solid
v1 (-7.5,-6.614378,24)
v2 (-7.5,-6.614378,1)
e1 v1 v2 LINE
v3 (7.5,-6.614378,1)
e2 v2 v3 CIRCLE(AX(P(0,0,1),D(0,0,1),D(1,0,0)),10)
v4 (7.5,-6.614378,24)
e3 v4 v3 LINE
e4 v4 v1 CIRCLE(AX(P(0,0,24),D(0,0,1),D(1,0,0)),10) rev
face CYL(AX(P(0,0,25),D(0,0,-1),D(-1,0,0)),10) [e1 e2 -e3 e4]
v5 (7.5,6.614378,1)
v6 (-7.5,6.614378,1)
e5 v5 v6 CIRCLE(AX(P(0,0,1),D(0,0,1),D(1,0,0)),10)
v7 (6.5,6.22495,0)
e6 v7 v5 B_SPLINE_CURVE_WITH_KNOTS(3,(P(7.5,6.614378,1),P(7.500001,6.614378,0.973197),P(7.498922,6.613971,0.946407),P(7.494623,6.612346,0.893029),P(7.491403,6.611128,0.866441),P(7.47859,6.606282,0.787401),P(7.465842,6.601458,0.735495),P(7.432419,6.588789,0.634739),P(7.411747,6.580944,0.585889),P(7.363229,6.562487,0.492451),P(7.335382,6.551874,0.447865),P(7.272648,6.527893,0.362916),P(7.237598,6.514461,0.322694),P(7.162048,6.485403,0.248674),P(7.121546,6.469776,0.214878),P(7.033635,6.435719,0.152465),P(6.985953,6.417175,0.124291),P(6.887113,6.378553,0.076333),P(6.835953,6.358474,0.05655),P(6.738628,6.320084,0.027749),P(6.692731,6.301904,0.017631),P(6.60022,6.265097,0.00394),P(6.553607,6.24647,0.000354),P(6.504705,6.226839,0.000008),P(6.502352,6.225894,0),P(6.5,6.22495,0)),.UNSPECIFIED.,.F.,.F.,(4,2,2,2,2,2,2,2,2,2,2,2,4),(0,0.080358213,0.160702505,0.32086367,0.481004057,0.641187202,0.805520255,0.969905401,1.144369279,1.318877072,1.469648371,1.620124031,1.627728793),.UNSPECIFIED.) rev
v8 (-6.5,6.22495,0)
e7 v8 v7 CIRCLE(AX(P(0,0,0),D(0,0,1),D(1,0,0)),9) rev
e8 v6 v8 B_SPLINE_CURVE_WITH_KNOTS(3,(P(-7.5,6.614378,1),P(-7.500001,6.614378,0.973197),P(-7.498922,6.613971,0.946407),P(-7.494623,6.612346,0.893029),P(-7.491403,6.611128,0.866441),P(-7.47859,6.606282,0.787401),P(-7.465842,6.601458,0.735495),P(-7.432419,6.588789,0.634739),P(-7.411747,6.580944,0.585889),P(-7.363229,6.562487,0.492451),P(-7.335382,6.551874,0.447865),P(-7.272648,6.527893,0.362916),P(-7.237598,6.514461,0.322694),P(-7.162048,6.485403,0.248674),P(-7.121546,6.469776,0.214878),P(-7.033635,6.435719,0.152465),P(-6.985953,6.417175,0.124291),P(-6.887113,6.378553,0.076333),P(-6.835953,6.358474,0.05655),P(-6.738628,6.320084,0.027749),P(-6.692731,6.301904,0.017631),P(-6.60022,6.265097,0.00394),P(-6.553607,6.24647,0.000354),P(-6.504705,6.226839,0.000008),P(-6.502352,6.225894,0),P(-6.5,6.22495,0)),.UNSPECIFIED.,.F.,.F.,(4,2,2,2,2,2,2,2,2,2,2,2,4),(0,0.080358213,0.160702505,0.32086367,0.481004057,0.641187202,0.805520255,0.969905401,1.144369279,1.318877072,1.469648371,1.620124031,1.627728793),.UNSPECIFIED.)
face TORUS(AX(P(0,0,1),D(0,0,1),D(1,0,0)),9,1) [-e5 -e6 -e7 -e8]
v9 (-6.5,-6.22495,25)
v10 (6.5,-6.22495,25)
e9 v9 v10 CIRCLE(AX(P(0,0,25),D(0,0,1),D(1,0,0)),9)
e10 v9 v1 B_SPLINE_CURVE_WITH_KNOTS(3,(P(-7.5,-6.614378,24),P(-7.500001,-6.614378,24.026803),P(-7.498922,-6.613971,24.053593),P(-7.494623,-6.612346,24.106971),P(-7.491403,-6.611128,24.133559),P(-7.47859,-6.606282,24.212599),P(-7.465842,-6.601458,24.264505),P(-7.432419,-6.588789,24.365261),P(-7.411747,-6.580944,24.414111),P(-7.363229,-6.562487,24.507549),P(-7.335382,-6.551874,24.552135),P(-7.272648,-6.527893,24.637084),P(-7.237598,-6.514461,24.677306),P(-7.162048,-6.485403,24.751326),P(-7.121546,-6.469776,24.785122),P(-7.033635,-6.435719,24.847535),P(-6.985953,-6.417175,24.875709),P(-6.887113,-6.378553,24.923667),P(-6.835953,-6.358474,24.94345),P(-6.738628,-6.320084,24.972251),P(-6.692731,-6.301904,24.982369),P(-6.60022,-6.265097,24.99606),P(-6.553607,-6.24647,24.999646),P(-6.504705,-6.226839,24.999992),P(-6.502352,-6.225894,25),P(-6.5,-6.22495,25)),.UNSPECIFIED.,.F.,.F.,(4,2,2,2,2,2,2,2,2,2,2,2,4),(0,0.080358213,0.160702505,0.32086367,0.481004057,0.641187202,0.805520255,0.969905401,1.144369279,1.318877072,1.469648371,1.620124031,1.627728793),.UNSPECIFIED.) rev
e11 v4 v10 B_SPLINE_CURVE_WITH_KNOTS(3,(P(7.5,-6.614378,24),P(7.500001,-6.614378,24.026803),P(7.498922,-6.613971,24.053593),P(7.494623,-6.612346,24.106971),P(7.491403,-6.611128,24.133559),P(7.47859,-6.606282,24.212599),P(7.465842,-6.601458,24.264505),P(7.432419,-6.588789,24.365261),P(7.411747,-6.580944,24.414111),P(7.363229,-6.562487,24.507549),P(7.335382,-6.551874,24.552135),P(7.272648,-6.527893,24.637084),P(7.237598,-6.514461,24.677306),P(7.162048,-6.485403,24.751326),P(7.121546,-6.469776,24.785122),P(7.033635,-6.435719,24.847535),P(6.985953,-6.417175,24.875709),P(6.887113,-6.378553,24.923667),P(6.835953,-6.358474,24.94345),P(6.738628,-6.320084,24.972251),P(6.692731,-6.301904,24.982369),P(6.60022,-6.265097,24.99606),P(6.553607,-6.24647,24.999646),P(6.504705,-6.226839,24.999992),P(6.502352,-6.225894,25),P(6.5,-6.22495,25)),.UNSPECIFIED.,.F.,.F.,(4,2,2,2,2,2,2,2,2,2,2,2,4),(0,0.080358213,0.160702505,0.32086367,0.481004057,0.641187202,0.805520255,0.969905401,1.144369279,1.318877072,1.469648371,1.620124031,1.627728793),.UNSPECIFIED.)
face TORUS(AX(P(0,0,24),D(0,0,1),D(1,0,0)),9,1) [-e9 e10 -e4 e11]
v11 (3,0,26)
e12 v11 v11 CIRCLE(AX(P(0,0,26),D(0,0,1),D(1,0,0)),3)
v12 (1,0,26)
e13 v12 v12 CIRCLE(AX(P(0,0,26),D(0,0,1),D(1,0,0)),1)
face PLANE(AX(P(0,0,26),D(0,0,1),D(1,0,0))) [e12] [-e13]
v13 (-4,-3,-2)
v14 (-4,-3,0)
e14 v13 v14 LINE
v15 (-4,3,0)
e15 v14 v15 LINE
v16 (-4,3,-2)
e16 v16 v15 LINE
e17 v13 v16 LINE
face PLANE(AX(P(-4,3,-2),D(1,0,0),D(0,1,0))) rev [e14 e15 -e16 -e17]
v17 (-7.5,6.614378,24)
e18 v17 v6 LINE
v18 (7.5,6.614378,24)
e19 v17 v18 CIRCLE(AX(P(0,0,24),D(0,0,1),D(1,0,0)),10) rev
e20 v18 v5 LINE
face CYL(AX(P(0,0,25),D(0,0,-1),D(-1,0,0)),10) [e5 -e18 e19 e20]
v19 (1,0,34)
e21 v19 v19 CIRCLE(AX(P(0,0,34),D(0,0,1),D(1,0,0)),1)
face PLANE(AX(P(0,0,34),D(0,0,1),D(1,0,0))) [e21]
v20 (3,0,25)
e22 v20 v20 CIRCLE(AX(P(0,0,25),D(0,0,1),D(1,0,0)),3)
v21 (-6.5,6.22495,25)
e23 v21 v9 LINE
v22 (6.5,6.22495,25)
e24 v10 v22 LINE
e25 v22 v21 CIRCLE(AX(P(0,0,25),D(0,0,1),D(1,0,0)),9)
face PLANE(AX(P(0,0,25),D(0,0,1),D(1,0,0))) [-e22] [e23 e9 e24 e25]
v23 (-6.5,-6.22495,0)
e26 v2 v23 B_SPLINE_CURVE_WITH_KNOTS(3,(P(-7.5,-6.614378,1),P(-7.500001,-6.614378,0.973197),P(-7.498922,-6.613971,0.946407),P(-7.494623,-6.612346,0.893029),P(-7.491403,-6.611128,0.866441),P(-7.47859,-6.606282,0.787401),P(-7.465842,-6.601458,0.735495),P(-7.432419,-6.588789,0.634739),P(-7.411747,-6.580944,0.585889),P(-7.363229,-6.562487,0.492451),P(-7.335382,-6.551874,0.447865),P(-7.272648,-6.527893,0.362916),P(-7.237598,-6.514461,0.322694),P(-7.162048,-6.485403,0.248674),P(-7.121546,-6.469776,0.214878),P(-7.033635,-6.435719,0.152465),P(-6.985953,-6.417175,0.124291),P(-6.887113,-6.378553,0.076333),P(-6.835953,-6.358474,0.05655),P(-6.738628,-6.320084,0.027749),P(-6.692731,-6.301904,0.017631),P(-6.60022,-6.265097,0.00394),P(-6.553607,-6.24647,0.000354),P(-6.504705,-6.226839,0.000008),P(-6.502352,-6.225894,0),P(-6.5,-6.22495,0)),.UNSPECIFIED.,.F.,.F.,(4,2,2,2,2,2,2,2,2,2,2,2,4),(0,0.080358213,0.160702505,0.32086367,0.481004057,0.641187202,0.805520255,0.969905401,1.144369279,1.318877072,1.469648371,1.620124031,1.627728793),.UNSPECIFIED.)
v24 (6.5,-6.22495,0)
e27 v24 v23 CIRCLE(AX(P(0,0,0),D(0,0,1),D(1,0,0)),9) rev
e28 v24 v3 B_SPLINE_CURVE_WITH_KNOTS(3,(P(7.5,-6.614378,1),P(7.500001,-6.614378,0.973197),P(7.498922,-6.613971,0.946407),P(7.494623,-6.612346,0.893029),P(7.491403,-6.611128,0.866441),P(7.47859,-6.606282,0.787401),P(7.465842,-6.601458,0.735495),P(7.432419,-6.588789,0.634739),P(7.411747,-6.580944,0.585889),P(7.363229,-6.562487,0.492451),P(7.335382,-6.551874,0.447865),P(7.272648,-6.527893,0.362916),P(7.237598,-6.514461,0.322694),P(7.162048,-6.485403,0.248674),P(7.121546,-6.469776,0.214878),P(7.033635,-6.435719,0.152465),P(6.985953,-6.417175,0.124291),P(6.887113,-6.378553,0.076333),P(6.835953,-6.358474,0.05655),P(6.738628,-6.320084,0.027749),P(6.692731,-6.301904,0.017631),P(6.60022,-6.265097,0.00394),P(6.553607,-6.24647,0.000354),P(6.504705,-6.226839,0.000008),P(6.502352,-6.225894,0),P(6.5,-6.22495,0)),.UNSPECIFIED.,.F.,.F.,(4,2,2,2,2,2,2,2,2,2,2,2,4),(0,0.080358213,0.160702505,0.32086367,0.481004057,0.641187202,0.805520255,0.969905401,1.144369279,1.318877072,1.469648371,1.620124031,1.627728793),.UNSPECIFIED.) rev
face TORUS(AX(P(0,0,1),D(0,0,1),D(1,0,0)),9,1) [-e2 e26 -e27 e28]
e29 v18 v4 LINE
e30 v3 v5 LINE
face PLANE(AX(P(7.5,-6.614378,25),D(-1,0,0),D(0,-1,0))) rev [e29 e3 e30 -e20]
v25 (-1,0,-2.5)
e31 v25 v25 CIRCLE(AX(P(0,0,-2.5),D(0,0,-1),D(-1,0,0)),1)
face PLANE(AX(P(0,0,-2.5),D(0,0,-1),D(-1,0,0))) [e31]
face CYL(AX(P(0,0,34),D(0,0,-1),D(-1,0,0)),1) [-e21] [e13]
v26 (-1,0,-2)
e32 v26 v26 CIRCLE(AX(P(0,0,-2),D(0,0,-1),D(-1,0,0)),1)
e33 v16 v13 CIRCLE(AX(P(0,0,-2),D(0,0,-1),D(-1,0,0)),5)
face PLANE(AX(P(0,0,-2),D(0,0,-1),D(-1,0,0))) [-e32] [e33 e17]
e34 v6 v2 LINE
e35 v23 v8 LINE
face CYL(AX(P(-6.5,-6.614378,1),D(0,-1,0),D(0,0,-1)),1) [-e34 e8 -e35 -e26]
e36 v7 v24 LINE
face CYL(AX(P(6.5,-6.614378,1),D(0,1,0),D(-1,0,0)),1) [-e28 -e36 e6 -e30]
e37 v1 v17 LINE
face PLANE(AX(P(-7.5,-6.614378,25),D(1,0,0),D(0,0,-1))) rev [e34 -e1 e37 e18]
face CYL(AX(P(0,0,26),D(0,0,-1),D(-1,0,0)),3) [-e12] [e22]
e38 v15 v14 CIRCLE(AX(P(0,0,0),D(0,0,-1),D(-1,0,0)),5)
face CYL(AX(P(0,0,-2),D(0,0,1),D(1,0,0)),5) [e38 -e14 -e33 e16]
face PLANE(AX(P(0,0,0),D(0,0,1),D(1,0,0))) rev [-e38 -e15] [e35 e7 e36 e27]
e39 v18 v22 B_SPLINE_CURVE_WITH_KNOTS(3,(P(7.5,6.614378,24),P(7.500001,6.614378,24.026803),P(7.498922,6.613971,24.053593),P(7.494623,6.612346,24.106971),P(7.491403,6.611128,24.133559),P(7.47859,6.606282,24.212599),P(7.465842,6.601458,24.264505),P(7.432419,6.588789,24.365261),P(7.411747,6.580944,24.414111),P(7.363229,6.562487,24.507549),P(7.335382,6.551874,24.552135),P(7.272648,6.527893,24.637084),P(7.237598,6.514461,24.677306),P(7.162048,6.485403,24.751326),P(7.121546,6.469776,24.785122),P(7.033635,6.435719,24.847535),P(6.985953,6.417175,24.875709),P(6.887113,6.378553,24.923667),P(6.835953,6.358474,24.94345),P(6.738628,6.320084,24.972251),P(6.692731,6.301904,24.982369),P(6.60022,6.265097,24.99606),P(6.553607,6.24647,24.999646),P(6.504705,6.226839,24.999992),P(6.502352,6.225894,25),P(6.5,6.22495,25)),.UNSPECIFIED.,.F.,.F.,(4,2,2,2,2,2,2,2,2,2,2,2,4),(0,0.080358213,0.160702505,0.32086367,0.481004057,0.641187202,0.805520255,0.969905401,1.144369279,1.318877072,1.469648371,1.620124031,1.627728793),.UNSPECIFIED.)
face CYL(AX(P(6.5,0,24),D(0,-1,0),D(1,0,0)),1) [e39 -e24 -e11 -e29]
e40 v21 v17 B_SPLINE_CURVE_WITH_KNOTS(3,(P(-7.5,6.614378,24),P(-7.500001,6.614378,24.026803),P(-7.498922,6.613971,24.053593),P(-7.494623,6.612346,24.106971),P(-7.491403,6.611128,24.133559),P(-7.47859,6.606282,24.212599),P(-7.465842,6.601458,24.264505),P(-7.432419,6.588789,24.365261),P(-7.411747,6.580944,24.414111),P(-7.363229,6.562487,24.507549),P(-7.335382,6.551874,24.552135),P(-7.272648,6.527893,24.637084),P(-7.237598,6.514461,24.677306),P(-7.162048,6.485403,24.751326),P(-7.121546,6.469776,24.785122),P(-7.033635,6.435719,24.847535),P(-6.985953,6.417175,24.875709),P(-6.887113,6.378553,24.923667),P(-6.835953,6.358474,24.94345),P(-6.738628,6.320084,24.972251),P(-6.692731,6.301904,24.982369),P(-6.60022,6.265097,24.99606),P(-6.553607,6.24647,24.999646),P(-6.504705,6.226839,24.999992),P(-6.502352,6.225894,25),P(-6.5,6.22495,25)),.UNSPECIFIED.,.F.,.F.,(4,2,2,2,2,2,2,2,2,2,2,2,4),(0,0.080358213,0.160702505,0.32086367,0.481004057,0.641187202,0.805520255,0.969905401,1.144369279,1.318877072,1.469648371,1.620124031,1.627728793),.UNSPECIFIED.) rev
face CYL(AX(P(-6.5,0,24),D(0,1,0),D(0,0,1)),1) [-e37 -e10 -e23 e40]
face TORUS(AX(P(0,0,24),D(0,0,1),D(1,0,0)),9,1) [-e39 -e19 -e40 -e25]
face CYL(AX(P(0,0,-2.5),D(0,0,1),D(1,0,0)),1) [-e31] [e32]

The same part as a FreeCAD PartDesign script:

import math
import FreeCAD as App
import Part
import Sketcher
Q = App.Units.Quantity


def edges_at(feature, points):
    """Names of the edges that pass closest to the given points."""
    edges = feature.Shape.Edges
    near = lambda p: min(range(len(edges)), key=lambda i: edges[i].distToShape(Part.Vertex(*p))[0])
    return sorted({f"Edge{near(p) + 1}" for p in points})

doc = App.newDocument("Part")
body = doc.addObject("PartDesign::Body", "Body")

# Sketch on XY plane
sketch1 = body.newObject("Sketcher::SketchObject", "Sketch")
sketch1.AttachmentSupport = (doc.getObject("XY_Plane"), [""])
sketch1.MapMode = "FlatFace"
sketch1.addGeometry(Part.LineSegment(App.Vector(-8, 7, 0), App.Vector(-8, -7, 0)), False)
sketch1.addGeometry(Part.ArcOfCircle(Part.Circle(App.Vector(0, 0, 0), App.Vector(0, 0, 1), 10), math.radians(-139), math.radians(-41)), False)
sketch1.addGeometry(Part.LineSegment(App.Vector(8, -7, 0), App.Vector(8, 7, 0)), False)
sketch1.addGeometry(Part.ArcOfCircle(Part.Circle(App.Vector(0, 0, 0), App.Vector(0, 0, 1), 10), math.radians(41), math.radians(139)), False)
sketch1.addConstraint(Sketcher.Constraint("Coincident", 0, 2, 1, 1))
sketch1.addConstraint(Sketcher.Constraint("Coincident", 1, 2, 2, 1))
sketch1.addConstraint(Sketcher.Constraint("Coincident", 2, 2, 3, 1))
sketch1.addConstraint(Sketcher.Constraint("Coincident", 3, 2, 0, 1))
sketch1.addConstraint(Sketcher.Constraint("Vertical", 0))
sketch1.addConstraint(Sketcher.Constraint("Vertical", 2))
sketch1.addConstraint(Sketcher.Constraint("Coincident", 1, 3, -1, 1))
sketch1.addConstraint(Sketcher.Constraint("Coincident", 3, 3, -1, 1))
sketch1.addConstraint(Sketcher.Constraint("Equal", 1, 3))
sketch1.addConstraint(Sketcher.Constraint("Horizontal", 0, 2, 1, 2))
sketch1.addConstraint(Sketcher.Constraint("Radius", 1, Q("10 mm")))
sketch1.addConstraint(Sketcher.Constraint("DistanceX", 0, 2, 1, 2, Q("15 mm")))
pad1 = body.newObject("PartDesign::Pad", "Pad")
pad1.Profile = sketch1
pad1.Length = 25

# Sketch on XY plane
sketch2 = body.newObject("Sketcher::SketchObject", "Sketch001")
sketch2.AttachmentSupport = (doc.getObject("XY_Plane"), [""])
sketch2.MapMode = "FlatFace"
sketch2.AttachmentOffset = App.Placement(App.Vector(0, 0, 25), App.Rotation())
sketch2.addGeometry(Part.Circle(App.Vector(0, 0, 0), App.Vector(0, 0, 1), 3), False)
sketch2.addConstraint(Sketcher.Constraint("Coincident", 0, 3, -1, 1))
sketch2.addConstraint(Sketcher.Constraint("Diameter", 0, Q("6 mm")))
pad2 = body.newObject("PartDesign::Pad", "Pad001")
pad2.Profile = sketch2
pad2.Length = 1

# Sketch on XY plane
sketch3 = body.newObject("Sketcher::SketchObject", "Sketch002")
sketch3.AttachmentSupport = (doc.getObject("XY_Plane"), [""])
sketch3.MapMode = "FlatFace"
sketch3.AttachmentOffset = App.Placement(App.Vector(0, 0, 26), App.Rotation())
sketch3.addGeometry(Part.Circle(App.Vector(0, 0, 0), App.Vector(0, 0, 1), 1), False)
sketch3.addConstraint(Sketcher.Constraint("Coincident", 0, 3, -1, 1))
sketch3.addConstraint(Sketcher.Constraint("Diameter", 0, Q("2 mm")))
pad3 = body.newObject("PartDesign::Pad", "Pad002")
pad3.Profile = sketch3
pad3.Length = 8

# Sketch on XY plane
sketch4 = body.newObject("Sketcher::SketchObject", "Sketch003")
sketch4.AttachmentSupport = (doc.getObject("XY_Plane"), [""])
sketch4.MapMode = "FlatFace"
sketch4.addGeometry(Part.LineSegment(App.Vector(-4, -3, 0), App.Vector(-4, 3, 0)), False)
sketch4.addGeometry(Part.ArcOfCircle(Part.Circle(App.Vector(0, 0, 0), App.Vector(0, 0, 1), 5), math.radians(-143), math.radians(143)), False)
sketch4.addConstraint(Sketcher.Constraint("Coincident", 0, 1, 1, 1))
sketch4.addConstraint(Sketcher.Constraint("Coincident", 1, 2, 0, 2))
sketch4.addConstraint(Sketcher.Constraint("Vertical", 0))
sketch4.addConstraint(Sketcher.Constraint("Coincident", 1, 3, -1, 1))
sketch4.addConstraint(Sketcher.Constraint("Radius", 1, Q("5 mm")))
sketch4.addConstraint(Sketcher.Constraint("DistanceY", 0, 1, 0, 2, Q("6 mm")))
pad4 = body.newObject("PartDesign::Pad", "Pad003")
pad4.Profile = sketch4
pad4.Length = 2
pad4.Reversed = True

# Sketch on XY plane
sketch5 = body.newObject("Sketcher::SketchObject", "Sketch004")
sketch5.AttachmentSupport = (doc.getObject("XY_Plane"), [""])
sketch5.MapMode = "FlatFace"
sketch5.AttachmentOffset = App.Placement(App.Vector(0, 0, -2.5), App.Rotation())
sketch5.addGeometry(Part.Circle(App.Vector(0, 0, 0), App.Vector(0, 0, 1), 1), False)
sketch5.addConstraint(Sketcher.Constraint("Coincident", 0, 3, -1, 1))
sketch5.addConstraint(Sketcher.Constraint("Diameter", 0, Q("2 mm")))
pad5 = body.newObject("PartDesign::Pad", "Pad004")
pad5.Profile = sketch5
pad5.Length = 0.5
doc.recompute()

fillet = body.newObject("PartDesign::Fillet", "Fillet")
fillet.Base = (pad5, edges_at(pad5, [
    (0, -10, 25),
    (7.5, 0, 25),
    (0, 10, 25),
    (-7.5, 0, 25),
]))
fillet.Radius = 1
doc.recompute()

fillet2 = body.newObject("PartDesign::Fillet", "Fillet001")
fillet2.Base = (fillet, edges_at(fillet, [
    (7.5, 0, 0),
    (0, -10, 0),
    (-7.5, 0, 0),
    (0, 10, 0),
]))
fillet2.Radius = 1

doc.recompute()
